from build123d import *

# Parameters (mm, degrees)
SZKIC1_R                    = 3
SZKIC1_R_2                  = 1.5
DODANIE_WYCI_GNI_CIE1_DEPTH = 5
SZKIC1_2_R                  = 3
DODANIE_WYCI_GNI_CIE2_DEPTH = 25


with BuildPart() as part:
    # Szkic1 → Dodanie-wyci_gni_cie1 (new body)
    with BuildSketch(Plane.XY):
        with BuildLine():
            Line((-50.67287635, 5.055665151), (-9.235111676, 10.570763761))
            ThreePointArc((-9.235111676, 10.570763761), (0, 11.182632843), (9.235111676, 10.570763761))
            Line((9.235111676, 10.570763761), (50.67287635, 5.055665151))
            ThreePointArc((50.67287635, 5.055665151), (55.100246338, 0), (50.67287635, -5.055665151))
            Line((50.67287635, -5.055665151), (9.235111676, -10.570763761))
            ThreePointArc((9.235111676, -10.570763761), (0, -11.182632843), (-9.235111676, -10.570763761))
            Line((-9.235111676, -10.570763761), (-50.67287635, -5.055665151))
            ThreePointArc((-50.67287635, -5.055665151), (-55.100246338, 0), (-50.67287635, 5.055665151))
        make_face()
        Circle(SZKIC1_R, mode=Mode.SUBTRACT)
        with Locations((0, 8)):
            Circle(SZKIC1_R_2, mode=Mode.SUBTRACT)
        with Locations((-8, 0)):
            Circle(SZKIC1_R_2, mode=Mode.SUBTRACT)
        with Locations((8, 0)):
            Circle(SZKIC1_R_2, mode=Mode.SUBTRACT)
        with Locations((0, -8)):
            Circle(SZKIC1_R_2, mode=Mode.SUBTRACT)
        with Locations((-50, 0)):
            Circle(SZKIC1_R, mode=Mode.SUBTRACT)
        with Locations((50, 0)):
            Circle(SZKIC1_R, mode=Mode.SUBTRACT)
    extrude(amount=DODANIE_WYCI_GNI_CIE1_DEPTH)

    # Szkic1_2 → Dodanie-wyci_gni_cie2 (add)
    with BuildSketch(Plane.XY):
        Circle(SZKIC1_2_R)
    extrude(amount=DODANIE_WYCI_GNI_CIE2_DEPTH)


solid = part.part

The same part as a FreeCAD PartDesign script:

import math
import FreeCAD as App
import Part
import Sketcher
from FreeCAD import Vector

doc = App.newDocument("Part")
params = doc.addObject("Spreadsheet::Sheet", "Params")
for row, (alias, value) in enumerate([
    ("sketch1_diameter", "3 mm"),
    ("sketch1_diameter2", "6 mm"),
    ("sketch1_radius", "70 mm"),
    ("pad1_length", "5 mm"),
    ("sketch2_diameter", "6 mm"),
    ("pad2_length", "25 mm"),
], start=1):
    params.set(f"A{row}", alias)
    params.set(f"B{row}", "=" + value)
    params.setAlias(f"B{row}", alias)

body = doc.addObject("PartDesign::Body", "Body")

# Sketch on XY plane
sketch1 = body.newObject("Sketcher::SketchObject", "Sketch")
sketch1.AttachmentSupport = (doc.getObject("XY_Plane"), [""])
sketch1.MapMode = "FlatFace"
sketch1.addGeometry(Part.LineSegment(Vector(-9.2, 10.6, 0), Vector(-50.7, 5.1, 0)), False)
sketch1.addGeometry(Part.ArcOfCircle(Part.Circle(Vector(-50, 0, 0), Vector(0, 0, 1), 5.1), math.radians(98), math.radians(262)), False)
sketch1.addGeometry(Part.LineSegment(Vector(-50.7, -5.1, 0), Vector(-9.2, -10.6, 0)), False)
sketch1.addGeometry(Part.ArcOfCircle(Part.Circle(Vector(0, 58.8, 0), Vector(0, 0, 1), 70), math.radians(-97.58), math.radians(-82.42)), False)
sketch1.addGeometry(Part.LineSegment(Vector(9.2, -10.6, 0), Vector(50.7, -5.1, 0)), False)
sketch1.addGeometry(Part.ArcOfCircle(Part.Circle(Vector(50, 0, 0), Vector(0, 0, 1), 5.1), math.radians(-82), math.radians(82)), False)
sketch1.addGeometry(Part.LineSegment(Vector(50.7, 5.1, 0), Vector(9.2, 10.6, 0)), False)
sketch1.addGeometry(Part.ArcOfCircle(Part.Circle(Vector(0, -58.8, 0), Vector(0, 0, 1), 70), math.radians(82.42), math.radians(97.58)), False)
sketch1.addGeometry(Part.Circle(Vector(0, -8, 0), Vector(0, 0, 1), 1.5), False)
sketch1.addGeometry(Part.Circle(Vector(50, 0, 0), Vector(0, 0, 1), 3), False)
sketch1.addGeometry(Part.Circle(Vector(8, 0, 0), Vector(0, 0, 1), 1.5), False)
sketch1.addGeometry(Part.Circle(Vector(0, 0, 0), Vector(0, 0, 1), 3), False)
sketch1.addGeometry(Part.Circle(Vector(-8, 0, 0), Vector(0, 0, 1), 1.5), False)
sketch1.addGeometry(Part.Circle(Vector(-50, 0, 0), Vector(0, 0, 1), 3), False)
sketch1.addGeometry(Part.Circle(Vector(0, 8, 0), Vector(0, 0, 1), 1.5), False)
sketch1.addConstraint(Sketcher.Constraint("Tangent", 0, 2, 1, 1))
sketch1.addConstraint(Sketcher.Constraint("Tangent", 1, 2, 2, 1))
sketch1.addConstraint(Sketcher.Constraint("Tangent", 2, 2, 3, 1))
sketch1.addConstraint(Sketcher.Constraint("Tangent", 3, 2, 4, 1))
sketch1.addConstraint(Sketcher.Constraint("Tangent", 4, 2, 5, 1))
sketch1.addConstraint(Sketcher.Constraint("Tangent", 5, 2, 6, 1))
sketch1.addConstraint(Sketcher.Constraint("Tangent", 6, 2, 7, 1))
sketch1.addConstraint(Sketcher.Constraint("Tangent", 7, 2, 0, 1))
sketch1.addConstraint(Sketcher.Constraint("Coincident", 11, 3, -1, 1))
sketch1.addConstraint(Sketcher.Constraint("Coincident", 9, 3, 5, 3))
sketch1.addConstraint(Sketcher.Constraint("Coincident", 13, 3, 1, 3))
sketch1.addConstraint(Sketcher.Constraint("Equal", 1, 5))
sketch1.addConstraint(Sketcher.Constraint("Equal", 3, 7))
sketch1.addConstraint(Sketcher.Constraint("Equal", 8, 10))
sketch1.addConstraint(Sketcher.Constraint("Equal", 9, 11))
sketch1.addConstraint(Sketcher.Constraint("Equal", 10, 12))
sketch1.addConstraint(Sketcher.Constraint("Equal", 11, 13))
sketch1.addConstraint(Sketcher.Constraint("Equal", 12, 14))
sketch1.addConstraint(Sketcher.Constraint("Symmetric", 1, 3, 5, 3, -1, 1))
sketch1.addConstraint(Sketcher.Constraint("Symmetric", 3, 3, 7, 3, -1, 1))
sketch1.addConstraint(Sketcher.Constraint("Symmetric", 10, 3, 12, 3, -1, 1))
sketch1.addConstraint(Sketcher.Constraint("Symmetric", 8, 3, 14, 3, -1, 1))
sketch1.addConstraint(Sketcher.Constraint("Symmetric", 2, 2, 3, 2, -2))
sketch1.addConstraint(Sketcher.Constraint("PointOnObject", 8, 3, -2))
sketch1.addConstraint(Sketcher.Constraint("PointOnObject", 10, 3, -1))
sketch1.addConstraint(Sketcher.Constraint("Diameter", 8, 3.0))
sketch1.addConstraint(Sketcher.Constraint("Diameter", 9, 6.0))
sketch1.addConstraint(Sketcher.Constraint("Radius", 3, 70.0))
sketch1.addConstraint(Sketcher.Constraint("DistanceX", 1, 3, -1, 1, 50.0))
sketch1.addConstraint(Sketcher.Constraint("DistanceY", 8, 3, -1, 1, 8.0))
sketch1.addConstraint(Sketcher.Constraint("DistanceX", -1, 1, 10, 3, 8.0))
sketch1.addConstraint(Sketcher.Constraint("Radius", 1, 5.100246))
sketch1.addConstraint(Sketcher.Constraint("DistanceY", 3, 2, 4, 2, 5.515099))
sketch1.setExpression("Constraints[25]", "Params.sketch1_diameter")
sketch1.setExpression("Constraints[26]", "Params.sketch1_diameter2")
sketch1.setExpression("Constraints[27]", "Params.sketch1_radius")
pad1 = body.newObject("PartDesign::Pad", "Pad")
pad1.Profile = sketch1
pad1.setExpression("Length", "Params.pad1_length")

# Sketch on XY plane
sketch2 = body.newObject("Sketcher::SketchObject", "Sketch001")
sketch2.AttachmentSupport = (doc.getObject("XY_Plane"), [""])
sketch2.MapMode = "FlatFace"
sketch2.addGeometry(Part.Circle(Vector(0, 0, 0), Vector(0, 0, 1), 3), False)
sketch2.addConstraint(Sketcher.Constraint("Coincident", 0, 3, -1, 1))
sketch2.addConstraint(Sketcher.Constraint("Diameter", 0, 6.0))
sketch2.setExpression("Constraints[1]", "Params.sketch2_diameter")
pad2 = body.newObject("PartDesign::Pad", "Pad001")
pad2.Profile = sketch2
pad2.setExpression("Length", "Params.pad2_length")

doc.recompute()
